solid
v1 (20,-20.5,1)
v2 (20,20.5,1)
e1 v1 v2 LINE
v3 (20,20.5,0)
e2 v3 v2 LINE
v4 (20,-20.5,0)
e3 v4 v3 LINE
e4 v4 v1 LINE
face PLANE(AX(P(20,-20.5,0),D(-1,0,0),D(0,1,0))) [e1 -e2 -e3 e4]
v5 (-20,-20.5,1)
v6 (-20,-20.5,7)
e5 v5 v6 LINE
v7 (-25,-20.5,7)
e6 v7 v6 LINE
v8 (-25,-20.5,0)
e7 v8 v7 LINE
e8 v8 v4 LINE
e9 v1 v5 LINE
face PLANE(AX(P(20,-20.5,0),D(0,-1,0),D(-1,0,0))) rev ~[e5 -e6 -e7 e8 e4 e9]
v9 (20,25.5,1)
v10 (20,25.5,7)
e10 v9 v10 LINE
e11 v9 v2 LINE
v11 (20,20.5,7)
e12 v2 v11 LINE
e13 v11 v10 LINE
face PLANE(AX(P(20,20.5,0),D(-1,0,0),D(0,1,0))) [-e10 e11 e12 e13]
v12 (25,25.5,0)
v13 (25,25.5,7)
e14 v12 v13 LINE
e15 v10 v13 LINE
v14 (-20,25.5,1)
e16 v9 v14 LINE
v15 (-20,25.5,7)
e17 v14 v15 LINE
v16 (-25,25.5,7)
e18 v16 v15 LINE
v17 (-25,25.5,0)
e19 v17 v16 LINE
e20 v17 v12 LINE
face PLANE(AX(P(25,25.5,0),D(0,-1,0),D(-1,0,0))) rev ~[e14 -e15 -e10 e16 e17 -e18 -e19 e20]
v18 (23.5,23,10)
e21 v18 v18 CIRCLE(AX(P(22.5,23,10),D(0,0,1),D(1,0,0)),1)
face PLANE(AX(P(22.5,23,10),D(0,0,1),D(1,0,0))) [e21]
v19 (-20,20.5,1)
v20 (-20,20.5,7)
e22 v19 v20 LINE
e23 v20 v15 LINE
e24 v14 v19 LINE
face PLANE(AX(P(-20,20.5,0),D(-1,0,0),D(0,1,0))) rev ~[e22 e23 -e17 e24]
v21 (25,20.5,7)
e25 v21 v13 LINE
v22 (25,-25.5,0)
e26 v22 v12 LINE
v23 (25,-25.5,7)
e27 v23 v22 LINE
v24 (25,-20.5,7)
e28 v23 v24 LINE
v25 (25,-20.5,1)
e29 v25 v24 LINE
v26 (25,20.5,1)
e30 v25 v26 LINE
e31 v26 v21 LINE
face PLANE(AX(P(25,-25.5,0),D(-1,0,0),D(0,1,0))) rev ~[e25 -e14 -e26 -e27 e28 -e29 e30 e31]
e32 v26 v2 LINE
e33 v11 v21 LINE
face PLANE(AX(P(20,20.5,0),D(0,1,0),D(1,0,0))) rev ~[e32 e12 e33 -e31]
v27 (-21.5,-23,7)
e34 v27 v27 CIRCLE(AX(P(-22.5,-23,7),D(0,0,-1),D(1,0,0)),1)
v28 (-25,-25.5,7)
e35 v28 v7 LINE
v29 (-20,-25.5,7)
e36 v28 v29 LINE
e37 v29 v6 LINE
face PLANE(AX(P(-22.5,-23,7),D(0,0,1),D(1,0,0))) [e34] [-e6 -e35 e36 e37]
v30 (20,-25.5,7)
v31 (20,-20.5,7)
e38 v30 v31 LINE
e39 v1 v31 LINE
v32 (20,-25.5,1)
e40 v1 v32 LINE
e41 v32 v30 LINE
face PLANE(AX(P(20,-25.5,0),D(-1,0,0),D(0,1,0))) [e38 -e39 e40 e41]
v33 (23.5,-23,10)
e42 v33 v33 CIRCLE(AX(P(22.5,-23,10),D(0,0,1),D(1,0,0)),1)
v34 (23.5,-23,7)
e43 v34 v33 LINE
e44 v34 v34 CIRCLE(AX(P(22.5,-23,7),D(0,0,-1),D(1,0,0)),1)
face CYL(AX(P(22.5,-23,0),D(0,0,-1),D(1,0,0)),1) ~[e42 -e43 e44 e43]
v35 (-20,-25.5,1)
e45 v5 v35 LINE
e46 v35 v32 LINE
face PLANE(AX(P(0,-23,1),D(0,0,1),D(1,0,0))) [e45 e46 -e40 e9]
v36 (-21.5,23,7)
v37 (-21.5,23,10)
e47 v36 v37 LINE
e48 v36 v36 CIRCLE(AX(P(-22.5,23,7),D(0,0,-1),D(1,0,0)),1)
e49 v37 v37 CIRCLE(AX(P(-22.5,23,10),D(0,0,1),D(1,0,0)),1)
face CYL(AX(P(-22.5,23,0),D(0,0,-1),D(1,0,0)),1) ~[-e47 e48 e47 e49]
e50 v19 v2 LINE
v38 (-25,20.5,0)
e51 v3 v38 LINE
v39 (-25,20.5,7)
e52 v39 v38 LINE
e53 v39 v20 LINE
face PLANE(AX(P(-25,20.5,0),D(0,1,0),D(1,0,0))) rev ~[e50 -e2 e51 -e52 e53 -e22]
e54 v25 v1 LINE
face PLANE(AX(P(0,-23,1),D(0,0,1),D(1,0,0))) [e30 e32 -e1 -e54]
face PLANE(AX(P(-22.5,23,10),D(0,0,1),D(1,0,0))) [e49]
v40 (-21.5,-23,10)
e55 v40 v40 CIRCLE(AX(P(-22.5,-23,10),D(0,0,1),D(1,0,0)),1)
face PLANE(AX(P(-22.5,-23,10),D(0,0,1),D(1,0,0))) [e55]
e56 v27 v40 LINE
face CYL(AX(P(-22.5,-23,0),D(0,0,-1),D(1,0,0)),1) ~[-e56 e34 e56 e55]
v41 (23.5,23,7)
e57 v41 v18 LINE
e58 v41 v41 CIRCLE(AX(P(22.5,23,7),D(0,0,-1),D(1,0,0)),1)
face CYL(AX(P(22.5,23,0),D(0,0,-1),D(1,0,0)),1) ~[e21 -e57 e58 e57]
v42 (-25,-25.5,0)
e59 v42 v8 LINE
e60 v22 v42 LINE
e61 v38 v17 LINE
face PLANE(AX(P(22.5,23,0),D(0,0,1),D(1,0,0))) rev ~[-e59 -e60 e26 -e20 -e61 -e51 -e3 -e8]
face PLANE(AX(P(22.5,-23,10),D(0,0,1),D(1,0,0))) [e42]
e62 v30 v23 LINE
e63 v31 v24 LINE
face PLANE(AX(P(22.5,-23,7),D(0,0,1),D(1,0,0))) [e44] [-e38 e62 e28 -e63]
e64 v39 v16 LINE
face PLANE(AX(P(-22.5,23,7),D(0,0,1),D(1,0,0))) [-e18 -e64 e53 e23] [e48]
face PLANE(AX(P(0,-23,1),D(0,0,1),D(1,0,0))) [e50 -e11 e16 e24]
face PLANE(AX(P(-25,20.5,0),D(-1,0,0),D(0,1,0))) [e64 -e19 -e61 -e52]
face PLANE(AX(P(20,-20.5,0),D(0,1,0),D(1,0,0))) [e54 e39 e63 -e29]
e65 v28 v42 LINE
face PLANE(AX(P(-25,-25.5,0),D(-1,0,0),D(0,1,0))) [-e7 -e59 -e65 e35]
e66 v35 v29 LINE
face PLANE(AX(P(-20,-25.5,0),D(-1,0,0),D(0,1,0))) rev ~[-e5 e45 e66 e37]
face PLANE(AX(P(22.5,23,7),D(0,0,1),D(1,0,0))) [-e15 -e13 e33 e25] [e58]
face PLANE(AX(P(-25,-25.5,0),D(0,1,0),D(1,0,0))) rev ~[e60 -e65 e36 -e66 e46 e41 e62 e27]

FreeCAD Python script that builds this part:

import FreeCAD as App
import Part
import Sketcher
from FreeCAD import Vector
Q = App.Units.Quantity

doc = App.newDocument("Part")
params = doc.addObject("Spreadsheet::Sheet", "Params")
for row, (alias, value) in enumerate([
    ("sketch1_width", "50 mm"),
    ("sketch1_width2", "45 mm"),
    ("sketch1_height", "51 mm"),
    ("sketch1_height2", "5 mm"),
    ("pad1_length", "1 mm"),
    ("sketch2_width", "5 mm"),
    ("pad2_length", "7 mm"),
    ("sketch3_diameter", "2 mm"),
    ("pad3_length", "10 mm"),
], start=1):
    params.set(f"A{row}", alias)
    params.set(f"B{row}", "=" + value)
    params.setAlias(f"B{row}", alias)

body = doc.addObject("PartDesign::Body", "Body")

# Sketch on XY plane
sketch1 = doc.addObject("Sketcher::SketchObject", "Sketch")
body.addObject(sketch1)
sketch1.AttachmentSupport = (doc.XY_Plane, [""])
sketch1.MapMode = "FlatFace"
sketch1.addGeometry([
    Part.LineSegment(Vector(25, -26, 0), Vector(25, 26, 0)),  # 0
    Part.LineSegment(Vector(25, 26, 0), Vector(-25, 26, 0)),  # 1
    Part.LineSegment(Vector(-25, 26, 0), Vector(-25, 20, 0)),  # 2
    Part.LineSegment(Vector(-25, 20, 0), Vector(20, 20, 0)),  # 3
    Part.LineSegment(Vector(20, 20, 0), Vector(20, -20, 0)),  # 4
    Part.LineSegment(Vector(20, -20, 0), Vector(-25, -20, 0)),  # 5
    Part.LineSegment(Vector(-25, -20, 0), Vector(-25, -26, 0)),  # 6
    Part.LineSegment(Vector(-25, -26, 0), Vector(25, -26, 0)),  # 7
], False)
sketch1.addConstraint([
    Sketcher.Constraint("Coincident", 0, 2, 1, 1),
    Sketcher.Constraint("Coincident", 1, 2, 2, 1),
    Sketcher.Constraint("Coincident", 2, 2, 3, 1),
    Sketcher.Constraint("Coincident", 3, 2, 4, 1),
    Sketcher.Constraint("Coincident", 4, 2, 5, 1),
    Sketcher.Constraint("Coincident", 5, 2, 6, 1),
    Sketcher.Constraint("Coincident", 6, 2, 7, 1),
    Sketcher.Constraint("Coincident", 7, 2, 0, 1),
    Sketcher.Constraint("Vertical", 0),
    Sketcher.Constraint("Horizontal", 1),
    Sketcher.Constraint("Vertical", 2),
    Sketcher.Constraint("Horizontal", 3),
    Sketcher.Constraint("Vertical", 4),
    Sketcher.Constraint("Horizontal", 5),
    Sketcher.Constraint("Vertical", 6),
    Sketcher.Constraint("Horizontal", 7),
    Sketcher.Constraint("Symmetric", 0, 2, 6, 2, -1, 1),
    Sketcher.Constraint("Symmetric", 2, 2, 5, 2, -1),
    Sketcher.Constraint("DistanceX", 1, 2, 1, 1, Q("50 mm")),
    Sketcher.Constraint("DistanceX", 3, 1, 3, 2, Q("45 mm")),
    Sketcher.Constraint("DistanceY", 0, 1, 0, 2, Q("51 mm")),
    Sketcher.Constraint("DistanceY", 2, 2, 2, 1, Q("5 mm")),
])
sketch1.setExpression("Constraints[18]", "Params.sketch1_width")
sketch1.setExpression("Constraints[19]", "Params.sketch1_width2")
sketch1.setExpression("Constraints[20]", "Params.sketch1_height")
sketch1.setExpression("Constraints[21]", "Params.sketch1_height2")
pad1 = doc.addObject("PartDesign::Pad", "Pad")
body.addObject(pad1)
pad1.Profile = sketch1
pad1.setExpression("Length", "Params.pad1_length")

# Sketch on XY plane
sketch2 = doc.addObject("Sketcher::SketchObject", "Sketch001")
body.addObject(sketch2)
sketch2.AttachmentSupport = (doc.XY_Plane, [""])
sketch2.MapMode = "FlatFace"
sketch2.addGeometry([
    Part.LineSegment(Vector(20, 26, 0), Vector(20, 20, 0)),  # 0
    Part.LineSegment(Vector(20, 20, 0), Vector(25, 20, 0)),  # 1
    Part.LineSegment(Vector(25, 20, 0), Vector(25, 26, 0)),  # 2
    Part.LineSegment(Vector(25, 26, 0), Vector(20, 26, 0)),  # 3
    Part.LineSegment(Vector(-25, 26, 0), Vector(-25, 20, 0)),  # 4
    Part.LineSegment(Vector(-25, 20, 0), Vector(-20, 20, 0)),  # 5
    Part.LineSegment(Vector(-20, 20, 0), Vector(-20, 26, 0)),  # 6
    Part.LineSegment(Vector(-20, 26, 0), Vector(-25, 26, 0)),  # 7
    Part.LineSegment(Vector(20, -20, 0), Vector(20, -26, 0)),  # 8
    Part.LineSegment(Vector(20, -26, 0), Vector(25, -26, 0)),  # 9
    Part.LineSegment(Vector(25, -26, 0), Vector(25, -20, 0)),  # 10
    Part.LineSegment(Vector(25, -20, 0), Vector(20, -20, 0)),  # 11
    Part.LineSegment(Vector(-25, -20, 0), Vector(-25, -26, 0)),  # 12
    Part.LineSegment(Vector(-25, -26, 0), Vector(-20, -26, 0)),  # 13
    Part.LineSegment(Vector(-20, -26, 0), Vector(-20, -20, 0)),  # 14
    Part.LineSegment(Vector(-20, -20, 0), Vector(-25, -20, 0)),  # 15
], False)
sketch2.addConstraint([
    Sketcher.Constraint("Coincident", 0, 2, 1, 1),
    Sketcher.Constraint("Coincident", 1, 2, 2, 1),
    Sketcher.Constraint("Coincident", 2, 2, 3, 1),
    Sketcher.Constraint("Coincident", 3, 2, 0, 1),
    Sketcher.Constraint("Coincident", 4, 2, 5, 1),
    Sketcher.Constraint("Coincident", 5, 2, 6, 1),
    Sketcher.Constraint("Coincident", 6, 2, 7, 1),
    Sketcher.Constraint("Coincident", 7, 2, 4, 1),
    Sketcher.Constraint("Coincident", 8, 2, 9, 1),
    Sketcher.Constraint("Coincident", 9, 2, 10, 1),
    Sketcher.Constraint("Coincident", 10, 2, 11, 1),
    Sketcher.Constraint("Coincident", 11, 2, 8, 1),
    Sketcher.Constraint("Coincident", 12, 2, 13, 1),
    Sketcher.Constraint("Coincident", 13, 2, 14, 1),
    Sketcher.Constraint("Coincident", 14, 2, 15, 1),
    Sketcher.Constraint("Coincident", 15, 2, 12, 1),
    Sketcher.Constraint("Vertical", 0),
    Sketcher.Constraint("Horizontal", 1),
    Sketcher.Constraint("Vertical", 2),
    Sketcher.Constraint("Horizontal", 3),
    Sketcher.Constraint("Vertical", 4),
    Sketcher.Constraint("Horizontal", 5),
    Sketcher.Constraint("Vertical", 6),
    Sketcher.Constraint("Horizontal", 7),
    Sketcher.Constraint("Vertical", 8),
    Sketcher.Constraint("Horizontal", 9),
    Sketcher.Constraint("Vertical", 10),
    Sketcher.Constraint("Horizontal", 11),
    Sketcher.Constraint("Vertical", 12),
    Sketcher.Constraint("Horizontal", 13),
    Sketcher.Constraint("Vertical", 14),
    Sketcher.Constraint("Horizontal", 15),
    Sketcher.Constraint("Symmetric", 6, 2, 8, 2, -1, 1),
    Sketcher.Constraint("Symmetric", 4, 2, 10, 2, -1, 1),
    Sketcher.Constraint("Symmetric", 2, 2, 12, 2, -1, 1),
    Sketcher.Constraint("Symmetric", 0, 2, 14, 2, -1, 1),
    Sketcher.Constraint("Symmetric", 1, 2, 4, 2, -2),
    Sketcher.Constraint("Symmetric", 3, 2, 6, 2, -2),
    Sketcher.Constraint("Equal", 15, 0),
    Sketcher.Constraint("DistanceX", 1, 1, 1, 2, Q("5 mm")),
    Sketcher.Constraint("DistanceX", -1, 1, 0, 2, Q("20 mm")),
    Sketcher.Constraint("DistanceY", 8, 2, 0, 2, Q("46 mm")),
])
sketch2.setExpression("Constraints[39]", "Params.sketch2_width")
pad2 = doc.addObject("PartDesign::Pad", "Pad001")
body.addObject(pad2)
pad2.Profile = sketch2
pad2.setExpression("Length", "Params.pad2_length")

# Sketch on XY plane
sketch3 = doc.addObject("Sketcher::SketchObject", "Sketch002")
body.addObject(sketch3)
sketch3.AttachmentSupport = (doc.XY_Plane, [""])
sketch3.MapMode = "FlatFace"
sketch3.addGeometry([
    Part.Circle(Vector(22.5, 23, 0), Vector(0, 0, 1), 1),
    Part.Circle(Vector(-22.5, 23, 0), Vector(0, 0, 1), 1),
    Part.Circle(Vector(-22.5, -23, 0), Vector(0, 0, 1), 1),
    Part.Circle(Vector(22.5, -23, 0), Vector(0, 0, 1), 1),
], False)
sketch3.addConstraint([
    Sketcher.Constraint("Equal", 0, 1),
    Sketcher.Constraint("Equal", 1, 2),
    Sketcher.Constraint("Equal", 2, 3),
    Sketcher.Constraint("Symmetric", 0, 3, 2, 3, -1, 1),
    Sketcher.Constraint("Symmetric", 1, 3, 3, 3, -1, 1),
    Sketcher.Constraint("Symmetric", 0, 3, 1, 3, -2),
    Sketcher.Constraint("Diameter", 0, Q("2 mm")),
    Sketcher.Constraint("DistanceY", -1, 1, 0, 3, Q("23 mm")),
    Sketcher.Constraint("DistanceX", 1, 3, 0, 3, Q("45 mm")),
])
sketch3.setExpression("Constraints[6]", "Params.sketch3_diameter")
pad3 = doc.addObject("PartDesign::Pad", "Pad002")
body.addObject(pad3)
pad3.Profile = sketch3
pad3.setExpression("Length", "Params.pad3_length")

doc.recompute()
